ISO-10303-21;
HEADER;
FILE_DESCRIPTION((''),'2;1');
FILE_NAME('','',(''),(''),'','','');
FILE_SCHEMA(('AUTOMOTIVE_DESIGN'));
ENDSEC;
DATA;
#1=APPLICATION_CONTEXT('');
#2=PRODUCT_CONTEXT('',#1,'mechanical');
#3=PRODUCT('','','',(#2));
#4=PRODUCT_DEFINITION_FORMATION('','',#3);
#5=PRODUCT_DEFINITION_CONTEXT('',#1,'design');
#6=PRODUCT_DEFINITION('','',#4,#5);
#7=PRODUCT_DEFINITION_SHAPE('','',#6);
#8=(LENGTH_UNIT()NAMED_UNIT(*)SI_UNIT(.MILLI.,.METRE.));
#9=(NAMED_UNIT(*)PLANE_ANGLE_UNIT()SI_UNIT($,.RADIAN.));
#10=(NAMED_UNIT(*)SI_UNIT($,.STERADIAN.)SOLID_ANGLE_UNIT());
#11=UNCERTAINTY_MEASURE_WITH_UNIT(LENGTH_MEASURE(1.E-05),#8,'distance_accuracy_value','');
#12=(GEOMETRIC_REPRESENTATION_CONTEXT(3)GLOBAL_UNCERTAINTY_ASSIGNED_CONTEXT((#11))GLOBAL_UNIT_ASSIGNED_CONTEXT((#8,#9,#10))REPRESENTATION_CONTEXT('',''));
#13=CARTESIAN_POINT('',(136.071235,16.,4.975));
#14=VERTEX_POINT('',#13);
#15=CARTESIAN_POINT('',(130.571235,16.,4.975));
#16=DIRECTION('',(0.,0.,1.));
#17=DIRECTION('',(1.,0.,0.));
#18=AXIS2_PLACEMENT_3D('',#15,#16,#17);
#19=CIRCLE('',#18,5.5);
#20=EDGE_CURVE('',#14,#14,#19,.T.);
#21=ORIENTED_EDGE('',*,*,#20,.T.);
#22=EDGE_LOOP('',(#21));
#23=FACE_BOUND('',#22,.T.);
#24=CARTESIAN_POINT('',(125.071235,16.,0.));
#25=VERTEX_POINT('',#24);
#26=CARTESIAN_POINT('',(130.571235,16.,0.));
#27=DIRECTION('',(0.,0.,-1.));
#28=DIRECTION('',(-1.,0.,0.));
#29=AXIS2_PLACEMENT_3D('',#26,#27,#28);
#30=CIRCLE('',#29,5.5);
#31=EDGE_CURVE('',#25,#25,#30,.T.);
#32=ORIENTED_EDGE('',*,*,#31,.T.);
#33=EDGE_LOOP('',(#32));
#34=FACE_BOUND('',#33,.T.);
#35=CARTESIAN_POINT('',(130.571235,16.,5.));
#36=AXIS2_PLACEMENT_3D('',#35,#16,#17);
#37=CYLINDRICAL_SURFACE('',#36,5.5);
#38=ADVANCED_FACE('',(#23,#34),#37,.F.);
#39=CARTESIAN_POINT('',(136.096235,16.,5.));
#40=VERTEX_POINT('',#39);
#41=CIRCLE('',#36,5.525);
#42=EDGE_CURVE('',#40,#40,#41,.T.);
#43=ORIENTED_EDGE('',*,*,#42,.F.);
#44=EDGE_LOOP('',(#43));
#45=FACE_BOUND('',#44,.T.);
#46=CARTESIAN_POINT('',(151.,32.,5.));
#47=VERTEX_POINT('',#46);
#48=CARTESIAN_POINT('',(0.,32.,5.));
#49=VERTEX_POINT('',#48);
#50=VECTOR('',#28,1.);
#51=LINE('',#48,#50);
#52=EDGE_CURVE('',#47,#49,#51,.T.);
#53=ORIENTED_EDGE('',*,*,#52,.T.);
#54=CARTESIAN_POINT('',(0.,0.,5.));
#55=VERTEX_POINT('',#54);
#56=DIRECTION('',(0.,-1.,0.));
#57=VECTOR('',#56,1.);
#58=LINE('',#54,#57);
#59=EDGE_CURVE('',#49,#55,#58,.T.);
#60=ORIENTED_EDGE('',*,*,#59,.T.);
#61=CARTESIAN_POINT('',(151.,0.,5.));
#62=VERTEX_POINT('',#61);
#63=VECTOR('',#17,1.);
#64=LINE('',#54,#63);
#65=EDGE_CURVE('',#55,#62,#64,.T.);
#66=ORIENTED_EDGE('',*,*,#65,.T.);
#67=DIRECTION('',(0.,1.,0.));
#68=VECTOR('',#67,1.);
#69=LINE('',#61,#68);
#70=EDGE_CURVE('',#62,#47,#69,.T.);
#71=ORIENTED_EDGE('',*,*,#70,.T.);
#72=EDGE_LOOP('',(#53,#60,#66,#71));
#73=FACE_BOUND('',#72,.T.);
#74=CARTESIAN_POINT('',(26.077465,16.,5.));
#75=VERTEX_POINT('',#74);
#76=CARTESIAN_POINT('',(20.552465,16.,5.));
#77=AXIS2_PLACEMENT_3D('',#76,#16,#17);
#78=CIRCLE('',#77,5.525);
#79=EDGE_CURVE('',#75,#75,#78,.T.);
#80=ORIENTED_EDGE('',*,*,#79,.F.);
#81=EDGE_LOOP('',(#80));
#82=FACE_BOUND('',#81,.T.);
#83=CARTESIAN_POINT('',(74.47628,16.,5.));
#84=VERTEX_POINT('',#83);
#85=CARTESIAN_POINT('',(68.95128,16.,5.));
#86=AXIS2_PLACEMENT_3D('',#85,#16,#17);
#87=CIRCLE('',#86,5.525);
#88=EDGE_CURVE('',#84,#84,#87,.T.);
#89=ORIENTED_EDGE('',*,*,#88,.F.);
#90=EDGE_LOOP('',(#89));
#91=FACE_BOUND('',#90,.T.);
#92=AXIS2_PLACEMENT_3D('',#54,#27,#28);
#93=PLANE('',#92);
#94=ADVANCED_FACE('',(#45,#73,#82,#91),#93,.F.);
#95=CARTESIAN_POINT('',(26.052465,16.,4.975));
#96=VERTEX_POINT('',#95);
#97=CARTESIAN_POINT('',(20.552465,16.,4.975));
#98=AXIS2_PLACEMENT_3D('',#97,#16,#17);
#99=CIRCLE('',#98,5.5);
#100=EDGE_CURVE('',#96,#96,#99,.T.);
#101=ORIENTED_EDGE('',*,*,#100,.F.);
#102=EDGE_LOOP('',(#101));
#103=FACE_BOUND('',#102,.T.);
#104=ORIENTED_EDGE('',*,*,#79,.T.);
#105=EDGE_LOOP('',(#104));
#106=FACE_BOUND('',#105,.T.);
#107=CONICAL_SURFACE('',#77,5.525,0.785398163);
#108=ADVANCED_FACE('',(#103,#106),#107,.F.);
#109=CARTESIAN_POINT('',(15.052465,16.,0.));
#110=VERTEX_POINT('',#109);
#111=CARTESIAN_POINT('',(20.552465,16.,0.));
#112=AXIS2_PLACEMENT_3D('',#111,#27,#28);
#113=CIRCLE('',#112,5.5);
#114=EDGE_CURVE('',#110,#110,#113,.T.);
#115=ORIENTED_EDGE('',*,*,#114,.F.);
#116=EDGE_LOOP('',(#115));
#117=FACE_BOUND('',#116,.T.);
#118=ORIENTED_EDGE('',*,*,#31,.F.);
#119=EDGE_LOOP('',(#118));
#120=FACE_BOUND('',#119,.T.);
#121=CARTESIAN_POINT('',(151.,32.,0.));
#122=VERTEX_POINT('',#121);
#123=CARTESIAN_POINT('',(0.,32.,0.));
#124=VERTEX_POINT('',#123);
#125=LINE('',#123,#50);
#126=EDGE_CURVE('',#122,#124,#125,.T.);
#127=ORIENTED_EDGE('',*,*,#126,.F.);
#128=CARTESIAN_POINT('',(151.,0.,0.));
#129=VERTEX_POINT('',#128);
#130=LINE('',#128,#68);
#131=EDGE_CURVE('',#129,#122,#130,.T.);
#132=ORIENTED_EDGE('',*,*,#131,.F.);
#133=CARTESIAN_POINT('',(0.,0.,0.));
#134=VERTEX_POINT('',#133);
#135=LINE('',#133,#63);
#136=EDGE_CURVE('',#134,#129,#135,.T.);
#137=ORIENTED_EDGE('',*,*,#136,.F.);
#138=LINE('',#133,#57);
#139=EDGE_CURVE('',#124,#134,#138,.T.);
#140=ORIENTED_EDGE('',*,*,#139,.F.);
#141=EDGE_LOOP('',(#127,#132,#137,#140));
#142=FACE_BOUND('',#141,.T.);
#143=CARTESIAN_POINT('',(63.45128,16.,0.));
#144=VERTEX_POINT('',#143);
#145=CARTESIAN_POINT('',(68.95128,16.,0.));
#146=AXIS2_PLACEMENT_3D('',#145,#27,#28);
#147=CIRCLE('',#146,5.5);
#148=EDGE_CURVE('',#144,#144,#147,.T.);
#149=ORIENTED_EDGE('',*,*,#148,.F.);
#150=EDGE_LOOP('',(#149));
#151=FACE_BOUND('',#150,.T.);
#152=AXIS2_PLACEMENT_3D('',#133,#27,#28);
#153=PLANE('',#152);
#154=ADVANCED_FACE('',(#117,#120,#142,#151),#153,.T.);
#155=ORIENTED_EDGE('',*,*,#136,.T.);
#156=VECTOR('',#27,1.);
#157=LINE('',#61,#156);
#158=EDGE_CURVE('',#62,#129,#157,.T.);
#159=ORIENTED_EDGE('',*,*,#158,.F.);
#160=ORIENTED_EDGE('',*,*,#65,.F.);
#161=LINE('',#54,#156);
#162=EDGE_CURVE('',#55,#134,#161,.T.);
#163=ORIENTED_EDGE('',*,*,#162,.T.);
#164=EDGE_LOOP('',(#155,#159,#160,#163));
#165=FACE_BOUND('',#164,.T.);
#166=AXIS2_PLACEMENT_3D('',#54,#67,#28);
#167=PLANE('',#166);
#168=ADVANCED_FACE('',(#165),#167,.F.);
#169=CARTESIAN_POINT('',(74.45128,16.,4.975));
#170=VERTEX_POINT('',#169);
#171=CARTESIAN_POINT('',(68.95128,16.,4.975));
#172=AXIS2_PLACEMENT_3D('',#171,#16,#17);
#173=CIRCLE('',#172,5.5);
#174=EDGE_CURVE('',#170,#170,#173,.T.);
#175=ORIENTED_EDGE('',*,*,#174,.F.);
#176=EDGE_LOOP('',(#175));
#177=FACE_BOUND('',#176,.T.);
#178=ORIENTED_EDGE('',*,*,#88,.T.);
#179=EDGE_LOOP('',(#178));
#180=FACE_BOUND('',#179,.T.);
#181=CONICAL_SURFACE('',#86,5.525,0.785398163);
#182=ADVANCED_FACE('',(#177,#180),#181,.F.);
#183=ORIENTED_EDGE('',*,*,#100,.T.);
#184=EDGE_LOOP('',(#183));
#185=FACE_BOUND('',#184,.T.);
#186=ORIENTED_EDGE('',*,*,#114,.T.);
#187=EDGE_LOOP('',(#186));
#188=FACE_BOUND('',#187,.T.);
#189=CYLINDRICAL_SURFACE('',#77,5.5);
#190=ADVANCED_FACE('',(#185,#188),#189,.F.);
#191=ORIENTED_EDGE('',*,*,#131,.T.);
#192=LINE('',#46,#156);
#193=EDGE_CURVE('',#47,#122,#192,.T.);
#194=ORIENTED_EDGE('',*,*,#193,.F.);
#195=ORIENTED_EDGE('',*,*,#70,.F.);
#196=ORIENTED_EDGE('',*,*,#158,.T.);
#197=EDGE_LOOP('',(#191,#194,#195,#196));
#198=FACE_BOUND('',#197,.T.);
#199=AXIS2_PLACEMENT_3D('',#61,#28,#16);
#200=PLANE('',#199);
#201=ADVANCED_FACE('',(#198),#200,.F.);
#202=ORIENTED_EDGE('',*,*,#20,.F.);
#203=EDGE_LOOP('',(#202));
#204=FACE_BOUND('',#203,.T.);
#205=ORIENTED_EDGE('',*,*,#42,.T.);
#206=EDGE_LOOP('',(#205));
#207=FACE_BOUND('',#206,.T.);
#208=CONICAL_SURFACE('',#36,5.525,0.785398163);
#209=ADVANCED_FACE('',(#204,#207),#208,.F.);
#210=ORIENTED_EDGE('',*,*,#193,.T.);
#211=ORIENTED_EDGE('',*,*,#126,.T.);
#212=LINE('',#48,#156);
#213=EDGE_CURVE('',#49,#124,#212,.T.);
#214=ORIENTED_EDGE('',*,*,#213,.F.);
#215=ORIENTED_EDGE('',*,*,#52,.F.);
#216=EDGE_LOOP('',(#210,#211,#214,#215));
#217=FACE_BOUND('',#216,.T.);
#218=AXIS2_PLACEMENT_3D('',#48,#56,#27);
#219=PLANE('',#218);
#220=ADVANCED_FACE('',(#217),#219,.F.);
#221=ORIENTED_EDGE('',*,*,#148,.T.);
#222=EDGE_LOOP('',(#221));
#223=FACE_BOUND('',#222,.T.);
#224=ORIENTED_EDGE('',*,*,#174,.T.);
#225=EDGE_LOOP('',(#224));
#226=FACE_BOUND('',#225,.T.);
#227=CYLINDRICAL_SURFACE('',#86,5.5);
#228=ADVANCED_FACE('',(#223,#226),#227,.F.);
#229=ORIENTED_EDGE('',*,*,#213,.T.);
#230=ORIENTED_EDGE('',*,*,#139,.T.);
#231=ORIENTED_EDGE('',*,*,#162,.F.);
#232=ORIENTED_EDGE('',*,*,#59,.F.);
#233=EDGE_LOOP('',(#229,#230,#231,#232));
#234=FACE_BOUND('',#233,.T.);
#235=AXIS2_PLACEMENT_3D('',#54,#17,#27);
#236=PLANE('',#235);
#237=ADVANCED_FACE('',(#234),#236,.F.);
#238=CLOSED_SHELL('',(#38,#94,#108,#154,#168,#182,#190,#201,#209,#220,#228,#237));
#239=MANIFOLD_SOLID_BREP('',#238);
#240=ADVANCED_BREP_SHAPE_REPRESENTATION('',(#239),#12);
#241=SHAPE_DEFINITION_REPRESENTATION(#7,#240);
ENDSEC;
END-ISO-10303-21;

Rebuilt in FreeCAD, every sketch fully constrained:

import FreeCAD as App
import Part
import Sketcher

doc = App.newDocument("Part")
body = doc.addObject("PartDesign::Body", "Body")

# Sketch on XY plane
sketch1 = doc.addObject("Sketcher::SketchObject", "Sketch")
body.addObject(sketch1)
sketch1.AttachmentSupport = (doc.XY_Plane, [""])
sketch1.MapMode = "FlatFace"
sketch1.addGeometry([
    Part.LineSegment(App.Vector(0, 32, 0), App.Vector(0, 0, 0)),
    Part.LineSegment(App.Vector(0, 0, 0), App.Vector(151, 0, 0)),
    Part.LineSegment(App.Vector(151, 0, 0), App.Vector(151, 32, 0)),
    Part.LineSegment(App.Vector(151, 32, 0), App.Vector(0, 32, 0)),
], False)
sketch1.addConstraint([
    Sketcher.Constraint("Coincident", 0, 2, 1, 1),
    Sketcher.Constraint("Coincident", 1, 2, 2, 1),
    Sketcher.Constraint("Coincident", 2, 2, 3, 1),
    Sketcher.Constraint("Coincident", 3, 2, 0, 1),
    Sketcher.Constraint("Vertical", 0),
    Sketcher.Constraint("Horizontal", 1),
    Sketcher.Constraint("Vertical", 2),
    Sketcher.Constraint("Horizontal", 3),
    Sketcher.Constraint("Coincident", 0, 2, -1, 1),
    Sketcher.Constraint("DistanceX", 1, 1, 1, 2, 151.0),
    Sketcher.Constraint("DistanceY", 0, 2, 0, 1, 32.0),
])
pad1 = doc.addObject("PartDesign::Pad", "Pad")
body.addObject(pad1)
pad1.Profile = sketch1
pad1.Length = 5

# Sketch on XY plane
sketch2 = doc.addObject("Sketcher::SketchObject", "Sketch001")
body.addObject(sketch2)
sketch2.AttachmentSupport = (doc.XY_Plane, [""])
sketch2.MapMode = "FlatFace"
sketch2.AttachmentOffset = App.Placement(App.Vector(0, 0, 5), App.Rotation())
sketch2.addGeometry([
    Part.Circle(App.Vector(21, 16, 0), App.Vector(0, 0, 1), 6),
    Part.Circle(App.Vector(69, 16, 0), App.Vector(0, 0, 1), 6),
    Part.Circle(App.Vector(131, 16, 0), App.Vector(0, 0, 1), 6),
], False)
sketch2.addConstraint([
    Sketcher.Constraint("Equal", 0, 1),
    Sketcher.Constraint("Equal", 1, 2),
    Sketcher.Constraint("Horizontal", 0, 3, 1, 3),
    Sketcher.Constraint("Horizontal", 1, 3, 2, 3),
    Sketcher.Constraint("Diameter", 0, 11.0),
    Sketcher.Constraint("DistanceY", -1, 1, 0, 3, 16.0),
    Sketcher.Constraint("DistanceX", -1, 1, 1, 3, 68.95128),
    Sketcher.Constraint("DistanceX", 0, 3, 2, 3, 110.01877),
    Sketcher.Constraint("DistanceX", -1, 1, 0, 3, 20.552465),
])
doc.recompute()
hole = doc.addObject("PartDesign::Hole", "Hole")
body.addObject(hole)
hole.Profile = sketch2
hole.ThreadType = "None"
hole.Diameter = 11
hole.DepthType = "Dimension"
hole.Depth = 37
hole.DrillPoint = "Angled"
hole.DrillPointAngle = 118
hole.HoleCutType = "Countersink"
hole.HoleCutDiameter = 11.05
hole.HoleCutCountersinkAngle = 90

doc.recompute()
